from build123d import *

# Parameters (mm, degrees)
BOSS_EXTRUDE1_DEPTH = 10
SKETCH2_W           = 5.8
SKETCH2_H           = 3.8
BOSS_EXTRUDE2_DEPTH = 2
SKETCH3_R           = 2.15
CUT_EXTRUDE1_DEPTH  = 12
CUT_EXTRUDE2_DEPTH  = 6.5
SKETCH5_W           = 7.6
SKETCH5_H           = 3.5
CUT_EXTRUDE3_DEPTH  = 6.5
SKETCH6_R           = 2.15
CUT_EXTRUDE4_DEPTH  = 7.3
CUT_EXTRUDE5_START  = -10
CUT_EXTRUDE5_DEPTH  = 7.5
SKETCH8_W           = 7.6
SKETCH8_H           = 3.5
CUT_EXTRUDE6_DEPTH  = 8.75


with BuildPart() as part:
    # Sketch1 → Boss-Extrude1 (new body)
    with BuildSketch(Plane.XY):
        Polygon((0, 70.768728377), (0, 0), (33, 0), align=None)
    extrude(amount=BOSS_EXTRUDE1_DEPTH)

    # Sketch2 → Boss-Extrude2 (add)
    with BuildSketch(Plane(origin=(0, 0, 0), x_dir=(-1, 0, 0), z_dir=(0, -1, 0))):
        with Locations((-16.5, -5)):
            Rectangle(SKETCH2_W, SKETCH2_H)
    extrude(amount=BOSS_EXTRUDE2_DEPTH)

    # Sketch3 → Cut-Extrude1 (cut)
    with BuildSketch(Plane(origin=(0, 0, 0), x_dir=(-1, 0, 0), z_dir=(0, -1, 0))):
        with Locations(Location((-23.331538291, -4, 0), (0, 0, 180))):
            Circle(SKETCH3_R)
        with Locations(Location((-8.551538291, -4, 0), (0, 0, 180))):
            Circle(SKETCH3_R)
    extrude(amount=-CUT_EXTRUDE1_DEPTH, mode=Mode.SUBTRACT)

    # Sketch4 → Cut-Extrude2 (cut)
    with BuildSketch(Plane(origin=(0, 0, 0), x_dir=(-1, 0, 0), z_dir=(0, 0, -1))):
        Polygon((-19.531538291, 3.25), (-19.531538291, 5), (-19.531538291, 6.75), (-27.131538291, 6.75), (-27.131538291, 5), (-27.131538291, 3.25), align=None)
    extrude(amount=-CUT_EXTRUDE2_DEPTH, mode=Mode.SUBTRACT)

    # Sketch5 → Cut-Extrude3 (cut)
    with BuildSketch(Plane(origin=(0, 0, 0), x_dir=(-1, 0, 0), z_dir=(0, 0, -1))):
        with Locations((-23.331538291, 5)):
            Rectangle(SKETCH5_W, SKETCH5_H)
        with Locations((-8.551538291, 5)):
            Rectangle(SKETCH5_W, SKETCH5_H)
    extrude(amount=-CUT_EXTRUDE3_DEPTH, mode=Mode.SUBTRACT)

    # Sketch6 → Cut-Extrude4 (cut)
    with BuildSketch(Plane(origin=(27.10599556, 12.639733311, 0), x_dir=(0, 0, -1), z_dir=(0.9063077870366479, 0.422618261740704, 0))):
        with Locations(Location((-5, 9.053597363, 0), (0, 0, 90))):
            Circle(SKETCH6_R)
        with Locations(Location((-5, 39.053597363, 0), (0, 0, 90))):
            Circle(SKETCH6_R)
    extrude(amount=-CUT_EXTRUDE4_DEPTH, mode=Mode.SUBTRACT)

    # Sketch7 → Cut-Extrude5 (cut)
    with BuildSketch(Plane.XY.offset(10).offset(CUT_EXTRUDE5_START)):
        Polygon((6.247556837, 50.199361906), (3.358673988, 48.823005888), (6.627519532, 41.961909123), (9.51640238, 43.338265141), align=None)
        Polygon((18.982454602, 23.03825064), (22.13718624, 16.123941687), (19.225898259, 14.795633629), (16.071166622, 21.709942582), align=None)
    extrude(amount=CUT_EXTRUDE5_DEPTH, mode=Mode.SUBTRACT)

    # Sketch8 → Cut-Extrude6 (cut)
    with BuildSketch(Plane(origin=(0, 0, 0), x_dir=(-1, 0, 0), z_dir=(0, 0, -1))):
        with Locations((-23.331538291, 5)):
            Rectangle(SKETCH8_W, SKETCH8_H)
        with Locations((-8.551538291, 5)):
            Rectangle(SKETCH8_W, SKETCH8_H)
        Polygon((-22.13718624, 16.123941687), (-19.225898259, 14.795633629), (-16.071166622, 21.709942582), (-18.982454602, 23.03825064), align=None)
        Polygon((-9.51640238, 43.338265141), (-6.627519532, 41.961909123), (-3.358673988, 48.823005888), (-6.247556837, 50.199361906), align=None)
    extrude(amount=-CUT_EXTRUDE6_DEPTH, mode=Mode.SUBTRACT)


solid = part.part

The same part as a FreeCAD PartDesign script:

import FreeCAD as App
import Part
import Sketcher
from FreeCAD import Vector
Q = App.Units.Quantity


def add_polygon(sketch, points):
    """Adds a closed chain of lines whose ends are joined by coincident constraints."""
    first, n = sketch.GeometryCount, len(points)
    for a, b in zip(points, points[1:] + points[:1]):
        sketch.addGeometry(Part.LineSegment(App.Vector(*a, 0), App.Vector(*b, 0)), False)
    for i in range(n):
        sketch.addConstraint(Sketcher.Constraint("Coincident", first + i, 2, first + (i + 1) % n, 1))

doc = App.newDocument("Part")
body = doc.addObject("PartDesign::Body", "Body")

# Sketch on XY plane
sketch1 = doc.addObject("Sketcher::SketchObject", "Sketch")
body.addObject(sketch1)
sketch1.AttachmentSupport = (doc.XY_Plane, [""])
sketch1.MapMode = "FlatFace"
add_polygon(sketch1, [(0, 71), (0, 0), (33, 0)])  # lines 0-2
sketch1.addConstraint(Sketcher.Constraint("Vertical", 0))
sketch1.addConstraint(Sketcher.Constraint("Horizontal", 1))
sketch1.addConstraint(Sketcher.Constraint("Coincident", 0, 2, -1, 1))
sketch1.addConstraint(Sketcher.Constraint("DistanceX", 1, 1, 1, 2, 33.0))
sketch1.addConstraint(Sketcher.Constraint("Angle", 2, Q("115 deg")))
pad1 = doc.addObject("PartDesign::Pad", "Pad")
body.addObject(pad1)
pad1.Profile = sketch1
pad1.Length = 10

# Sketch on XZ plane
sketch2 = doc.addObject("Sketcher::SketchObject", "Sketch001")
body.addObject(sketch2)
sketch2.AttachmentSupport = (doc.XZ_Plane, [""])
sketch2.MapMode = "FlatFace"
add_polygon(sketch2, [(19.4, 3.1), (19.4, 6.9), (13.6, 6.9), (13.6, 3.1)])  # lines 0-3
sketch2.addConstraint(Sketcher.Constraint("Vertical", 0))
sketch2.addConstraint(Sketcher.Constraint("Horizontal", 1))
sketch2.addConstraint(Sketcher.Constraint("Vertical", 2))
sketch2.addConstraint(Sketcher.Constraint("Horizontal", 3))
sketch2.addConstraint(Sketcher.Constraint("DistanceX", 1, 2, 1, 1, 5.8))
sketch2.addConstraint(Sketcher.Constraint("DistanceY", 0, 1, 0, 2, 3.8))
sketch2.addConstraint(Sketcher.Constraint("DistanceX", -1, 1, 0, 2, 19.4))
sketch2.addConstraint(Sketcher.Constraint("DistanceY", -1, 1, 0, 2, 6.9))
pad2 = doc.addObject("PartDesign::Pad", "Pad001")
body.addObject(pad2)
pad2.Profile = sketch2
pad2.Length = 2

# Sketch on XZ plane
sketch3 = doc.addObject("Sketcher::SketchObject", "Sketch002")
body.addObject(sketch3)
sketch3.AttachmentSupport = (doc.XZ_Plane, [""])
sketch3.MapMode = "FlatFace"
sketch3.addGeometry(Part.Circle(Vector(23.3, 4, 0), Vector(0, 0, 1), 2.1), False)
sketch3.addGeometry(Part.Circle(Vector(8.6, 4, 0), Vector(0, 0, 1), 2.1), False)
sketch3.addConstraint(Sketcher.Constraint("Equal", 0, 1))
sketch3.addConstraint(Sketcher.Constraint("Horizontal", 0, 3, 1, 3))
sketch3.addConstraint(Sketcher.Constraint("Diameter", 0, 4.3))
sketch3.addConstraint(Sketcher.Constraint("DistanceY", -1, 1, 0, 3, 4.0))
sketch3.addConstraint(Sketcher.Constraint("DistanceX", 1, 3, 0, 3, 14.78))
sketch3.addConstraint(Sketcher.Constraint("DistanceX", -1, 1, 0, 3, 23.331538))
pocket1 = doc.addObject("PartDesign::Pocket", "Pocket")
body.addObject(pocket1)
pocket1.Profile = sketch3
pocket1.Length = 12

# Sketch on XY plane
sketch4 = doc.addObject("Sketcher::SketchObject", "Sketch003")
body.addObject(sketch4)
sketch4.AttachmentSupport = (doc.XY_Plane, [""])
sketch4.MapMode = "FlatFace"
add_polygon(sketch4, [(19.5, 3.2), (19.5, 6.8), (27.1, 6.8), (27.1, 3.2)])  # lines 0-3
sketch4.addConstraint(Sketcher.Constraint("Vertical", 0))
sketch4.addConstraint(Sketcher.Constraint("Horizontal", 1))
sketch4.addConstraint(Sketcher.Constraint("Vertical", 2))
sketch4.addConstraint(Sketcher.Constraint("Horizontal", 3))
sketch4.addConstraint(Sketcher.Constraint("DistanceX", 1, 1, 1, 2, 7.6))
sketch4.addConstraint(Sketcher.Constraint("DistanceY", 0, 1, 0, 2, 3.5))
sketch4.addConstraint(Sketcher.Constraint("DistanceY", -1, 1, 0, 2, 6.75))
sketch4.addConstraint(Sketcher.Constraint("DistanceX", -1, 1, 0, 2, 19.531538))
pocket2 = doc.addObject("PartDesign::Pocket", "Pocket001")
body.addObject(pocket2)
pocket2.Profile = sketch4
pocket2.Length = 6.5
pocket2.Reversed = True

# Sketch on XY plane
sketch5 = doc.addObject("Sketcher::SketchObject", "Sketch004")
body.addObject(sketch5)
sketch5.AttachmentSupport = (doc.XY_Plane, [""])
sketch5.MapMode = "FlatFace"
add_polygon(sketch5, [(27.1, 6.8), (27.1, 3.2), (19.5, 3.2), (19.5, 6.8)])  # lines 0-3
add_polygon(sketch5, [(12.4, 6.8), (12.4, 3.2), (4.8, 3.2), (4.8, 6.8)])  # lines 4-7
sketch5.addConstraint(Sketcher.Constraint("Vertical", 0))
sketch5.addConstraint(Sketcher.Constraint("Horizontal", 1))
sketch5.addConstraint(Sketcher.Constraint("Vertical", 2))
sketch5.addConstraint(Sketcher.Constraint("Horizontal", 3))
sketch5.addConstraint(Sketcher.Constraint("Vertical", 4))
sketch5.addConstraint(Sketcher.Constraint("Horizontal", 5))
sketch5.addConstraint(Sketcher.Constraint("Vertical", 6))
sketch5.addConstraint(Sketcher.Constraint("Horizontal", 7))
sketch5.addConstraint(Sketcher.Constraint("Horizontal", 1, 2, 4, 2))
sketch5.addConstraint(Sketcher.Constraint("Horizontal", 3, 2, 6, 2))
sketch5.addConstraint(Sketcher.Constraint("Equal", 3, 5))
sketch5.addConstraint(Sketcher.Constraint("DistanceX", 1, 2, 1, 1, 7.6))
sketch5.addConstraint(Sketcher.Constraint("DistanceY", 0, 2, 0, 1, 3.5))
sketch5.addConstraint(Sketcher.Constraint("DistanceY", -1, 1, 0, 2, 3.25))
sketch5.addConstraint(Sketcher.Constraint("DistanceX", 4, 2, 1, 2, 7.18))
sketch5.addConstraint(Sketcher.Constraint("DistanceX", -1, 1, 0, 2, 27.131538))
pocket3 = doc.addObject("PartDesign::Pocket", "Pocket002")
body.addObject(pocket3)
pocket3.Profile = sketch5
pocket3.Length = 6.5
pocket3.Reversed = True

# Sketch on an angled plane
sketch6 = doc.addObject("Sketcher::SketchObject", "Sketch005")
body.addObject(sketch6)
sketch6.Placement = App.Placement(Vector(27.105996, 12.639733, 0), App.Rotation(Vector(0, 0, -1), Vector(-0.422618262, 0.906307787, 0), Vector(0.906307787, 0.422618262, 0), "ZXY"))
sketch6.addGeometry(Part.Circle(Vector(-5, 9.1, 0), Vector(0, 0, 1), 2.1), False)
sketch6.addGeometry(Part.Circle(Vector(-5, 39.1, 0), Vector(0, 0, 1), 2.1), False)
sketch6.addConstraint(Sketcher.Constraint("Equal", 0, 1))
sketch6.addConstraint(Sketcher.Constraint("Vertical", 0, 3, 1, 3))
sketch6.addConstraint(Sketcher.Constraint("Diameter", 0, 4.3))
sketch6.addConstraint(Sketcher.Constraint("DistanceX", 0, 3, -1, 1, 5.0))
sketch6.addConstraint(Sketcher.Constraint("DistanceY", 0, 3, 1, 3, 30.0))
sketch6.addConstraint(Sketcher.Constraint("DistanceY", -1, 1, 0, 3, 9.053597))
pocket4 = doc.addObject("PartDesign::Pocket", "Pocket003")
body.addObject(pocket4)
pocket4.Profile = sketch6
pocket4.Length = 7.3

# Sketch on XY plane
sketch7 = doc.addObject("Sketcher::SketchObject", "Sketch006")
body.addObject(sketch7)
sketch7.AttachmentSupport = (doc.XY_Plane, [""])
sketch7.MapMode = "FlatFace"
add_polygon(sketch7, [(6.2, 50.2), (3.4, 48.8), (6.6, 42), (9.5, 43.3)])  # lines 0-3
add_polygon(sketch7, [(22.1, 16.1), (19, 23), (16.1, 21.7), (19.2, 14.8)])  # lines 4-7
sketch7.addConstraint(Sketcher.Constraint("Perpendicular", 0, 1))
sketch7.addConstraint(Sketcher.Constraint("Perpendicular", 1, 2))
sketch7.addConstraint(Sketcher.Constraint("Perpendicular", 2, 3))
sketch7.addConstraint(Sketcher.Constraint("Perpendicular", 4, 5))
sketch7.addConstraint(Sketcher.Constraint("Perpendicular", 5, 6))
sketch7.addConstraint(Sketcher.Constraint("Perpendicular", 6, 7))
sketch7.addConstraint(Sketcher.Constraint("Equal", 3, 4))
sketch7.addConstraint(Sketcher.Constraint("Equal", 2, 5))
sketch7.addConstraint(Sketcher.Constraint("Distance", 0, 3.2))
sketch7.addConstraint(Sketcher.Constraint("Distance", 1, 7.6))
sketch7.addConstraint(Sketcher.Constraint("DistanceY", 7, 2, 5, 2, 5.586001))
sketch7.addConstraint(Sketcher.Constraint("DistanceX", -1, 1, 6, 2, 19.225898))
sketch7.addConstraint(Sketcher.Constraint("DistanceX", -1, 1, 1, 2, 6.62752))
sketch7.addConstraint(Sketcher.Constraint("DistanceY", -1, 1, 1, 2, 41.961909))
sketch7.addConstraint(Sketcher.Constraint("DistanceY", -1, 1, 3, 2, 50.199362))
sketch7.addConstraint(Sketcher.Constraint("DistanceY", -1, 1, 4, 2, 23.038251))
pocket5 = doc.addObject("PartDesign::Pocket", "Pocket004")
body.addObject(pocket5)
pocket5.Profile = sketch7
pocket5.Length = 7.5
pocket5.Reversed = True

# Sketch on XY plane
sketch8 = doc.addObject("Sketcher::SketchObject", "Sketch007")
body.addObject(sketch8)
sketch8.AttachmentSupport = (doc.XY_Plane, [""])
sketch8.MapMode = "FlatFace"
add_polygon(sketch8, [(27.1, 6.8), (27.1, 3.2), (19.5, 3.2), (19.5, 6.8)])  # lines 0-3
add_polygon(sketch8, [(12.4, 6.8), (12.4, 3.2), (4.8, 3.2), (4.8, 6.8)])  # lines 4-7
add_polygon(sketch8, [(22.1, 16.1), (19.2, 14.8), (16.1, 21.7), (19, 23)])  # lines 8-11
add_polygon(sketch8, [(9.5, 43.3), (6.6, 42), (3.4, 48.8), (6.2, 50.2)])  # lines 12-15
sketch8.addConstraint(Sketcher.Constraint("Vertical", 0))
sketch8.addConstraint(Sketcher.Constraint("Horizontal", 1))
sketch8.addConstraint(Sketcher.Constraint("Vertical", 2))
sketch8.addConstraint(Sketcher.Constraint("Horizontal", 3))
sketch8.addConstraint(Sketcher.Constraint("Vertical", 4))
sketch8.addConstraint(Sketcher.Constraint("Horizontal", 5))
sketch8.addConstraint(Sketcher.Constraint("Vertical", 6))
sketch8.addConstraint(Sketcher.Constraint("Horizontal", 7))
sketch8.addConstraint(Sketcher.Constraint("Perpendicular", 8, 9))
sketch8.addConstraint(Sketcher.Constraint("Perpendicular", 9, 10))
sketch8.addConstraint(Sketcher.Constraint("Perpendicular", 10, 11))
sketch8.addConstraint(Sketcher.Constraint("Perpendicular", 12, 13))
sketch8.addConstraint(Sketcher.Constraint("Perpendicular", 13, 14))
sketch8.addConstraint(Sketcher.Constraint("Perpendicular", 14, 15))
sketch8.addConstraint(Sketcher.Constraint("Horizontal", 1, 2, 4, 2))
sketch8.addConstraint(Sketcher.Constraint("Horizontal", 3, 2, 6, 2))
sketch8.addConstraint(Sketcher.Constraint("Equal", 3, 5))
sketch8.addConstraint(Sketcher.Constraint("Equal", 10, 12))
sketch8.addConstraint(Sketcher.Constraint("Equal", 11, 13))
sketch8.addConstraint(Sketcher.Constraint("DistanceX", 1, 2, 1, 1, 7.6))
sketch8.addConstraint(Sketcher.Constraint("DistanceY", 0, 2, 0, 1, 3.5))
sketch8.addConstraint(Sketcher.Constraint("Distance", 8, 3.2))
sketch8.addConstraint(Sketcher.Constraint("Distance", 9, 7.6))
sketch8.addConstraint(Sketcher.Constraint("DistanceY", -1, 1, 0, 2, 3.25))
sketch8.addConstraint(Sketcher.Constraint("DistanceX", 4, 2, 1, 2, 7.18))
sketch8.addConstraint(Sketcher.Constraint("DistanceY", 11, 2, 9, 2, 5.586001))
sketch8.addConstraint(Sketcher.Constraint("DistanceX", -1, 1, 8, 2, 19.225898))
sketch8.addConstraint(Sketcher.Constraint("DistanceX", -1, 1, 0, 2, 27.131538))
sketch8.addConstraint(Sketcher.Constraint("DistanceY", -1, 1, 10, 2, 23.038251))
sketch8.addConstraint(Sketcher.Constraint("DistanceX", -1, 1, 12, 2, 6.62752))
sketch8.addConstraint(Sketcher.Constraint("DistanceY", -1, 1, 12, 2, 41.961909))
sketch8.addConstraint(Sketcher.Constraint("DistanceY", -1, 1, 14, 2, 50.199362))
pocket6 = doc.addObject("PartDesign::Pocket", "Pocket005")
body.addObject(pocket6)
pocket6.Profile = sketch8
pocket6.Length = 8.75
pocket6.Reversed = True

doc.recompute()
